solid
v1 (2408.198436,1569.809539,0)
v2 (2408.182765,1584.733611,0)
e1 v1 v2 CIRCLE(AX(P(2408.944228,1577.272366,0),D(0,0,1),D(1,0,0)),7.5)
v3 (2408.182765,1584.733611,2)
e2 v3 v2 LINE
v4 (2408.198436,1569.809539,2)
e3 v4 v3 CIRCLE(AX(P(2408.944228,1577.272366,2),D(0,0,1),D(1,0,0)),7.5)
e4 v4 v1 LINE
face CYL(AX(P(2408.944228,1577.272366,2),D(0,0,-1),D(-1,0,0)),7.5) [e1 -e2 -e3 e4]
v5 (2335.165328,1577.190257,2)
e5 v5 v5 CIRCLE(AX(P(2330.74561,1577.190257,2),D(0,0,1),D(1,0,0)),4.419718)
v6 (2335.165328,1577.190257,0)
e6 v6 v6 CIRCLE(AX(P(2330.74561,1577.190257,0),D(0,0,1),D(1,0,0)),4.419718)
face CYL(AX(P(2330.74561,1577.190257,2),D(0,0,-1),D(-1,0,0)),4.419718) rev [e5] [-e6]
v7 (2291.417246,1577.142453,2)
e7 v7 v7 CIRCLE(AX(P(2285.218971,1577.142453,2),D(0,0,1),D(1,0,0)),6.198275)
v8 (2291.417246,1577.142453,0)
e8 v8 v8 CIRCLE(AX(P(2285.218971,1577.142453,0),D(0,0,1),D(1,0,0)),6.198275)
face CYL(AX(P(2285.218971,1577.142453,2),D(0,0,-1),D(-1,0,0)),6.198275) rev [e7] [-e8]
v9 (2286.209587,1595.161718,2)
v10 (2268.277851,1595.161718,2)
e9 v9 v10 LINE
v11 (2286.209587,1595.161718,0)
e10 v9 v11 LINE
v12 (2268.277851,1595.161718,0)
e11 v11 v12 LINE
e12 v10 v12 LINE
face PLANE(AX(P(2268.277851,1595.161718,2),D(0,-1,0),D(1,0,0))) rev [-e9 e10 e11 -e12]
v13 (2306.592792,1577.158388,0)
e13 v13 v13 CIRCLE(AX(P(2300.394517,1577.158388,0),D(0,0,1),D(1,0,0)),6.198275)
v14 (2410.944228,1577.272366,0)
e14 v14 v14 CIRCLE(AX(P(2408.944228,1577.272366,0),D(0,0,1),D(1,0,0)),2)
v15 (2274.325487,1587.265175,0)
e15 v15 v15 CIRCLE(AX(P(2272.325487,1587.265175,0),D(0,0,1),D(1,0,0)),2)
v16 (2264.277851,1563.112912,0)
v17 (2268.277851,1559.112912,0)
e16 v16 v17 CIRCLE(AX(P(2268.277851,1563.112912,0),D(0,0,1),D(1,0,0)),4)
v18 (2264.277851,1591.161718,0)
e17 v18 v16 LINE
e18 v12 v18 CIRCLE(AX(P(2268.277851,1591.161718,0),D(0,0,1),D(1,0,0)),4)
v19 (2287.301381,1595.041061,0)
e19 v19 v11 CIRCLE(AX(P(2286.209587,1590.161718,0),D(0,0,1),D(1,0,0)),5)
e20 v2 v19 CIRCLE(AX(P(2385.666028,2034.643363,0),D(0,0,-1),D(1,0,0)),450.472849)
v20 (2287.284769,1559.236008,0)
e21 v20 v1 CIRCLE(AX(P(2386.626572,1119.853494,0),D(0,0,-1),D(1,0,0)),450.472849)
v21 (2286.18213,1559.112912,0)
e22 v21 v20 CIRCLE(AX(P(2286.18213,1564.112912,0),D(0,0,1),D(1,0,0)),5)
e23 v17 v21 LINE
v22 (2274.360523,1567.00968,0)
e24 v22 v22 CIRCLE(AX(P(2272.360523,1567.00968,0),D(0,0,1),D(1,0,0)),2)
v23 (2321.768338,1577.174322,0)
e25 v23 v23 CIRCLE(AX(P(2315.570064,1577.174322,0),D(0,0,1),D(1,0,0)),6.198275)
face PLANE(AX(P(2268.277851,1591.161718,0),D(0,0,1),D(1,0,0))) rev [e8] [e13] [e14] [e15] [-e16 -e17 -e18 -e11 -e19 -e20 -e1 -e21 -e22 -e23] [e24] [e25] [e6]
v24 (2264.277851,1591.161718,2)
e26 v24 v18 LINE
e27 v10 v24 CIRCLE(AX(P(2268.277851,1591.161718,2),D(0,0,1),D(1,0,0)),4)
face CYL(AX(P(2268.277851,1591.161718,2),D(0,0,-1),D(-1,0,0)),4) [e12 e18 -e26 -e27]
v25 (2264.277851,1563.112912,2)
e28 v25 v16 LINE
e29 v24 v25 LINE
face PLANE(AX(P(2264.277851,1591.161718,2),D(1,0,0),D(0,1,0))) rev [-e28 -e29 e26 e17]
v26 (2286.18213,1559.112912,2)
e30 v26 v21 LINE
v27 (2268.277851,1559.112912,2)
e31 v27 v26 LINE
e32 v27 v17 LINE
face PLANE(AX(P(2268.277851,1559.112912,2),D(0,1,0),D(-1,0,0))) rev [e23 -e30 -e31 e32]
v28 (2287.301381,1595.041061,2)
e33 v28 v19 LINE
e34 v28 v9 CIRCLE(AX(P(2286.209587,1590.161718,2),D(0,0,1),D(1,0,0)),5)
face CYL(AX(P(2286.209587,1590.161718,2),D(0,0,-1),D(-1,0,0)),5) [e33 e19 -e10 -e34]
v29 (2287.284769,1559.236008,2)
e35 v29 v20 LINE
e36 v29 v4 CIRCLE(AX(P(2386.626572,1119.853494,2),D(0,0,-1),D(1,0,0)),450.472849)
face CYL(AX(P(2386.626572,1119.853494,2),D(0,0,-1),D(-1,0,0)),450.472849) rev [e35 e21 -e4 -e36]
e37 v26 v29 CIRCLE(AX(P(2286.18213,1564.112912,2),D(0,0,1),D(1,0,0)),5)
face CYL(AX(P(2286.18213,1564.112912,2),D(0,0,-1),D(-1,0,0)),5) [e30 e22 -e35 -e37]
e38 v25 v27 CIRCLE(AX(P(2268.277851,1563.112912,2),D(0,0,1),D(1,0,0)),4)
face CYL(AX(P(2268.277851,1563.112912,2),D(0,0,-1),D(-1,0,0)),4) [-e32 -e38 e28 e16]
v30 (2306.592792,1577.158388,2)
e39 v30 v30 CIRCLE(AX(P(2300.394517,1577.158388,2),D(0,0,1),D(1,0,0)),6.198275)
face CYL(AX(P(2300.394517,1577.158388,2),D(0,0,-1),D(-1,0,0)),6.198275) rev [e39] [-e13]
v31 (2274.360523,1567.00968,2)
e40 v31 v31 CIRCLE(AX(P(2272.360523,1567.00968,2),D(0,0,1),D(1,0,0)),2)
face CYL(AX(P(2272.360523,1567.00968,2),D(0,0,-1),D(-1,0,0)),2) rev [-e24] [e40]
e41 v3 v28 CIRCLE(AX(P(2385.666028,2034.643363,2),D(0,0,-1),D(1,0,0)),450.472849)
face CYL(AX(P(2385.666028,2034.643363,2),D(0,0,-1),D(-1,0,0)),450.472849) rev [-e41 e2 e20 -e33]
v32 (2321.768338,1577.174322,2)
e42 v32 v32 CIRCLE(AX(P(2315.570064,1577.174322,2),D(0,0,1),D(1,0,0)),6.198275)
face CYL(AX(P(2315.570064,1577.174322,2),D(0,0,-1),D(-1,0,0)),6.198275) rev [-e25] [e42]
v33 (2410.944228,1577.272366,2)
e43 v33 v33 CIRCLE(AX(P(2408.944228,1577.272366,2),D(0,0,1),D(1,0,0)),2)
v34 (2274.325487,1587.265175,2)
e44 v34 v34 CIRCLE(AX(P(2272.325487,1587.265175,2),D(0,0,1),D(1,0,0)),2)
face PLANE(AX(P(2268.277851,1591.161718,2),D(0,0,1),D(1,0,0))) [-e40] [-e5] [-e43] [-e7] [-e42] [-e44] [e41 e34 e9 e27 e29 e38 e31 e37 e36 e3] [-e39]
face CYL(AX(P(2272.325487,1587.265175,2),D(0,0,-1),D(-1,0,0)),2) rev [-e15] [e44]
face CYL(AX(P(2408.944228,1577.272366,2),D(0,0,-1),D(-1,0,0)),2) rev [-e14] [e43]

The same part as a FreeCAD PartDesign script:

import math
import FreeCAD as App
import Part
import Sketcher

doc = App.newDocument("Part")
body = doc.addObject("PartDesign::Body", "Body")

# Sketch on XY plane
sketch1 = body.newObject("Sketcher::SketchObject", "Sketch")
sketch1.AttachmentSupport = (doc.getObject("XY_Plane"), [""])
sketch1.MapMode = "FlatFace"
sketch1.addGeometry(Part.LineSegment(App.Vector(2286.2, 1595.2, 0), App.Vector(2268.3, 1595.2, 0)), False)
sketch1.addGeometry(Part.ArcOfCircle(Part.Circle(App.Vector(2268.3, 1591.2, 0), App.Vector(0, 0, 1), 4), math.radians(90), math.radians(180)), False)
sketch1.addGeometry(Part.LineSegment(App.Vector(2264.3, 1591.2, 0), App.Vector(2264.3, 1563.1, 0)), False)
sketch1.addGeometry(Part.ArcOfCircle(Part.Circle(App.Vector(2268.3, 1563.1, 0), App.Vector(0, 0, 1), 4), math.radians(-180), math.radians(-90)), False)
sketch1.addGeometry(Part.LineSegment(App.Vector(2268.3, 1559.1, 0), App.Vector(2286.2, 1559.1, 0)), False)
sketch1.addGeometry(Part.ArcOfCircle(Part.Circle(App.Vector(2286.2, 1564.1, 0), App.Vector(0, 0, 1), 5), math.radians(-90), math.radians(-77.26)), False)
sketch1.addGeometry(Part.ArcOfCircle(Part.Circle(App.Vector(2386.6, 1119.9, 0), App.Vector(0, 0, 1), 450.5), math.radians(87.26), math.radians(102.74)), False)
sketch1.addGeometry(Part.ArcOfCircle(Part.Circle(App.Vector(2408.9, 1577.3, 0), App.Vector(0, 0, 1), 7.5), math.radians(-96), math.radians(96)), False)
sketch1.addGeometry(Part.ArcOfCircle(Part.Circle(App.Vector(2385.7, 2034.6, 0), App.Vector(0, 0, 1), 450.5), math.radians(-102.61), math.radians(-87.13)), False)
sketch1.addGeometry(Part.ArcOfCircle(Part.Circle(App.Vector(2286.2, 1590.2, 0), App.Vector(0, 0, 1), 5), math.radians(77.39), math.radians(90)), False)
sketch1.addGeometry(Part.Circle(App.Vector(2272.4, 1567, 0), App.Vector(0, 0, 1), 2), False)
sketch1.addGeometry(Part.Circle(App.Vector(2408.9, 1577.3, 0), App.Vector(0, 0, 1), 2), False)
sketch1.addGeometry(Part.Circle(App.Vector(2330.7, 1577.2, 0), App.Vector(0, 0, 1), 4.4), False)
sketch1.addGeometry(Part.Circle(App.Vector(2315.6, 1577.2, 0), App.Vector(0, 0, 1), 6.2), False)
sketch1.addGeometry(Part.Circle(App.Vector(2300.4, 1577.2, 0), App.Vector(0, 0, 1), 6.2), False)
sketch1.addGeometry(Part.Circle(App.Vector(2285.2, 1577.1, 0), App.Vector(0, 0, 1), 6.2), False)
sketch1.addGeometry(Part.Circle(App.Vector(2272.3, 1587.3, 0), App.Vector(0, 0, 1), 2), False)
sketch1.addConstraint(Sketcher.Constraint("Tangent", 0, 2, 1, 1))
sketch1.addConstraint(Sketcher.Constraint("Tangent", 1, 2, 2, 1))
sketch1.addConstraint(Sketcher.Constraint("Tangent", 2, 2, 3, 1))
sketch1.addConstraint(Sketcher.Constraint("Tangent", 3, 2, 4, 1))
sketch1.addConstraint(Sketcher.Constraint("Tangent", 4, 2, 5, 1))
sketch1.addConstraint(Sketcher.Constraint("Tangent", 5, 2, 6, 2))
sketch1.addConstraint(Sketcher.Constraint("Coincident", 6, 1, 7, 1))
sketch1.addConstraint(Sketcher.Constraint("Coincident", 7, 2, 8, 2))
sketch1.addConstraint(Sketcher.Constraint("Tangent", 8, 1, 9, 1))
sketch1.addConstraint(Sketcher.Constraint("Tangent", 9, 2, 0, 1))
sketch1.addConstraint(Sketcher.Constraint("Horizontal", 0))
sketch1.addConstraint(Sketcher.Constraint("Vertical", 2))
sketch1.addConstraint(Sketcher.Constraint("Horizontal", 4))
sketch1.addConstraint(Sketcher.Constraint("Coincident", 11, 3, 7, 3))
sketch1.addConstraint(Sketcher.Constraint("Equal", 1, 3))
sketch1.addConstraint(Sketcher.Constraint("Equal", 6, 8))
sketch1.addConstraint(Sketcher.Constraint("Equal", 5, 9))
sketch1.addConstraint(Sketcher.Constraint("Equal", 10, 11))
sketch1.addConstraint(Sketcher.Constraint("Equal", 13, 14))
sketch1.addConstraint(Sketcher.Constraint("Equal", 14, 15))
sketch1.addConstraint(Sketcher.Constraint("Equal", 11, 16))
sketch1.addConstraint(Sketcher.Constraint("Diameter", 10, 4.0))
sketch1.addConstraint(Sketcher.Constraint("Radius", 1, 4.0))
sketch1.addConstraint(Sketcher.Constraint("Radius", 5, 5.0))
sketch1.addConstraint(Sketcher.Constraint("Radius", 7, 7.5))
sketch1.addConstraint(Sketcher.Constraint("Diameter", 13, 12.39655))
sketch1.addConstraint(Sketcher.Constraint("Radius", 6, 450.472849))
sketch1.addConstraint(Sketcher.Constraint("Diameter", 12, 8.839436))
sketch1.addConstraint(Sketcher.Constraint("DistanceX", 4, 1, 4, 2, 17.904279))
sketch1.addConstraint(Sketcher.Constraint("DistanceX", 8, 3, 7, 3, 23.2782))
sketch1.addConstraint(Sketcher.Constraint("DistanceX", 5, 3, 8, 3, 99.483898))
sketch1.addConstraint(Sketcher.Constraint("DistanceX", 16, 3, 9, 3, 13.8841))
sketch1.addConstraint(Sketcher.Constraint("DistanceX", 15, 3, 5, 2, 2.065798))
sketch1.addConstraint(Sketcher.Constraint("DistanceX", 13, 3, 7, 2, 92.612702))
sketch1.addConstraint(Sketcher.Constraint("DistanceX", 0, 2, 0, 1, 17.931737))
sketch1.addConstraint(Sketcher.Constraint("DistanceY", 2, 2, 2, 1, 28.048806))
sketch1.addConstraint(Sketcher.Constraint("DistanceX", -1, 1, 1, 3, 2268.277851))
sketch1.addConstraint(Sketcher.Constraint("DistanceY", -1, 1, 3, 3, 1563.112912))
sketch1.addConstraint(Sketcher.Constraint("DistanceX", -1, 1, 6, 3, 2386.626572))
sketch1.addConstraint(Sketcher.Constraint("DistanceY", -1, 1, 10, 3, 1567.00968))
sketch1.addConstraint(Sketcher.Constraint("DistanceX", -1, 1, 12, 3, 2330.74561))
sketch1.addConstraint(Sketcher.Constraint("DistanceY", -1, 1, 6, 1, 1569.809539))
sketch1.addConstraint(Sketcher.Constraint("DistanceY", 12, 3, 9, 3, 12.971461))
sketch1.addConstraint(Sketcher.Constraint("DistanceY", 5, 3, 13, 3, 13.06141))
sketch1.addConstraint(Sketcher.Constraint("DistanceX", 10, 3, 13, 3, 43.209541))
sketch1.addConstraint(Sketcher.Constraint("DistanceX", 9, 3, 14, 3, 14.18493))
sketch1.addConstraint(Sketcher.Constraint("DistanceY", 14, 3, 9, 3, 13.00333))
sketch1.addConstraint(Sketcher.Constraint("DistanceY", 5, 3, 15, 3, 13.029541))
sketch1.addConstraint(Sketcher.Constraint("DistanceY", 15, 3, 16, 3, 10.122722))
pad1 = body.newObject("PartDesign::Pad", "Pad")
pad1.Profile = sketch1
pad1.Length = 2

doc.recompute()
